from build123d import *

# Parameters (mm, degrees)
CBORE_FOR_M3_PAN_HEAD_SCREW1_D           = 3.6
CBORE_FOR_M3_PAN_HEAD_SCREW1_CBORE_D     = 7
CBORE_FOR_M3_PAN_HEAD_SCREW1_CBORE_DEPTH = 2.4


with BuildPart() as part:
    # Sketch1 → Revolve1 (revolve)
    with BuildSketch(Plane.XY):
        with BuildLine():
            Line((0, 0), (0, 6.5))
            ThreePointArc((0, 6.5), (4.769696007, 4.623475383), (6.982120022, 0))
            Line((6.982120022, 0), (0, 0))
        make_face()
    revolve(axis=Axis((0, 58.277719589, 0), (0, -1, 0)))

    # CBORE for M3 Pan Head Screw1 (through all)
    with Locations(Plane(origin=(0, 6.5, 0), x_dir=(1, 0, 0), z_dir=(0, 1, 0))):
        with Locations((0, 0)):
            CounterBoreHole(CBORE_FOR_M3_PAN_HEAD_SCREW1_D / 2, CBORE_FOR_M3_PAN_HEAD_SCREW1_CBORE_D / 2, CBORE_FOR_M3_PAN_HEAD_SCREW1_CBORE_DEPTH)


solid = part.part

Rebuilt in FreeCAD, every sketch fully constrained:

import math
import FreeCAD as App
import Part
import Sketcher

doc = App.newDocument("Part")
body = doc.addObject("PartDesign::Body", "Body")

sketch1 = doc.addObject("Sketcher::SketchObject", "Sketch")
body.addObject(sketch1)
sketch1.AttachmentSupport = (doc.XY_Plane, [""])
sketch1.MapMode = "FlatFace"
sketch1.addGeometry([
    Part.LineSegment(App.Vector(0, 6, 0), App.Vector(0, 0, 0)),
    Part.LineSegment(App.Vector(0, 0, 0), App.Vector(7, 0, 0)),
    Part.ArcOfCircle(Part.Circle(App.Vector(0, 0, 0), App.Vector(0, 0, 1), 7), math.radians(4), math.radians(90)),
], False)
sketch1.addConstraint([
    Sketcher.Constraint("Coincident", 0, 2, 1, 1),
    Sketcher.Constraint("Coincident", 1, 2, 2, 1),
    Sketcher.Constraint("Coincident", 2, 2, 0, 1),
    Sketcher.Constraint("Vertical", 0),
    Sketcher.Constraint("Horizontal", 1),
    Sketcher.Constraint("Coincident", 0, 2, -1, 1),
    Sketcher.Constraint("PointOnObject", 2, 3, -2),
    Sketcher.Constraint("Radius", 2, 7.0),
    Sketcher.Constraint("DistanceY", 0, 2, 0, 1, 6.5),
])
revolution = doc.addObject("PartDesign::Revolution", "Revolution")
body.addObject(revolution)
revolution.Profile = sketch1
revolution.ReferenceAxis = (sketch1, ["V_Axis"])
revolution.Angle = 360

sketch2 = doc.addObject("Sketcher::SketchObject", "Sketch001")
body.addObject(sketch2)
sketch2.AttachmentSupport = (doc.XZ_Plane, [""])
sketch2.MapMode = "FlatFace"
sketch2.AttachmentOffset = App.Placement(App.Vector(0, 0, -6.5), App.Rotation())
sketch2.addGeometry(Part.Circle(App.Vector(0, 0, 0), App.Vector(0, 0, 1), 1.8), False)
sketch2.addConstraint([
    Sketcher.Constraint("Coincident", 0, 3, -1, 1),
    Sketcher.Constraint("Diameter", 0, 3.6),
])
doc.recompute()
hole = doc.addObject("PartDesign::Hole", "Hole")
body.addObject(hole)
hole.Profile = sketch2
hole.ThreadType = "None"
hole.Diameter = 3.6
hole.DepthType = "ThroughAll"
hole.HoleCutType = "Counterbore"
hole.HoleCutDiameter = 7
hole.HoleCutDepth = 2.4
hole.Reversed = True

doc.recompute()
